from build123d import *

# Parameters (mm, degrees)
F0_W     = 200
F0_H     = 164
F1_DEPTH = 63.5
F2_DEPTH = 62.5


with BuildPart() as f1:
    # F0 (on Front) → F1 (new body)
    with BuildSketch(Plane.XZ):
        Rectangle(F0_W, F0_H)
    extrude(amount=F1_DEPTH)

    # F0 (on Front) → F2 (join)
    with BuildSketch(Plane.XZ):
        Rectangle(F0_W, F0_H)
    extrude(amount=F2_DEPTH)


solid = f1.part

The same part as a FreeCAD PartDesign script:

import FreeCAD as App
import Part
import Sketcher
Q = App.Units.Quantity

doc = App.newDocument("Part")
body = doc.addObject("PartDesign::Body", "Body")

# Sketch on XZ plane
sketch1 = body.newObject("Sketcher::SketchObject", "Sketch")
sketch1.AttachmentSupport = (doc.getObject("XZ_Plane"), [""])
sketch1.MapMode = "FlatFace"
sketch1.addGeometry([
    Part.LineSegment(App.Vector(-100, 82, 0), App.Vector(-100, -82, 0)),
    Part.LineSegment(App.Vector(-100, -82, 0), App.Vector(100, -82, 0)),
    Part.LineSegment(App.Vector(100, -82, 0), App.Vector(100, 82, 0)),
    Part.LineSegment(App.Vector(100, 82, 0), App.Vector(-100, 82, 0)),
], False)
sketch1.addConstraint([
    Sketcher.Constraint("Coincident", 0, 2, 1, 1),
    Sketcher.Constraint("Coincident", 1, 2, 2, 1),
    Sketcher.Constraint("Coincident", 2, 2, 3, 1),
    Sketcher.Constraint("Coincident", 3, 2, 0, 1),
    Sketcher.Constraint("Vertical", 0),
    Sketcher.Constraint("Horizontal", 1),
    Sketcher.Constraint("Vertical", 2),
    Sketcher.Constraint("Horizontal", 3),
    Sketcher.Constraint("Symmetric", 0, 2, 2, 2, -1, 1),
    Sketcher.Constraint("DistanceX", 1, 1, 1, 2, Q("200 mm")),
    Sketcher.Constraint("DistanceY", 0, 2, 0, 1, Q("164 mm")),
])
pad1 = body.newObject("PartDesign::Pad", "Pad")
pad1.Profile = sketch1
pad1.Length = 63.5

# Sketch on XZ plane
sketch2 = body.newObject("Sketcher::SketchObject", "Sketch001")
sketch2.AttachmentSupport = (doc.getObject("XZ_Plane"), [""])
sketch2.MapMode = "FlatFace"
sketch2.addGeometry([
    Part.LineSegment(App.Vector(-100, 82, 0), App.Vector(-100, -82, 0)),
    Part.LineSegment(App.Vector(-100, -82, 0), App.Vector(100, -82, 0)),
    Part.LineSegment(App.Vector(100, -82, 0), App.Vector(100, 82, 0)),
    Part.LineSegment(App.Vector(100, 82, 0), App.Vector(-100, 82, 0)),
], False)
sketch2.addConstraint([
    Sketcher.Constraint("Coincident", 0, 2, 1, 1),
    Sketcher.Constraint("Coincident", 1, 2, 2, 1),
    Sketcher.Constraint("Coincident", 2, 2, 3, 1),
    Sketcher.Constraint("Coincident", 3, 2, 0, 1),
    Sketcher.Constraint("Vertical", 0),
    Sketcher.Constraint("Horizontal", 1),
    Sketcher.Constraint("Vertical", 2),
    Sketcher.Constraint("Horizontal", 3),
    Sketcher.Constraint("Symmetric", 0, 2, 2, 2, -1, 1),
    Sketcher.Constraint("DistanceX", 1, 1, 1, 2, Q("200 mm")),
    Sketcher.Constraint("DistanceY", 0, 2, 0, 1, Q("164 mm")),
])
pad2 = body.newObject("PartDesign::Pad", "Pad001")
pad2.Profile = sketch2
pad2.Length = 62.5

doc.recompute()
